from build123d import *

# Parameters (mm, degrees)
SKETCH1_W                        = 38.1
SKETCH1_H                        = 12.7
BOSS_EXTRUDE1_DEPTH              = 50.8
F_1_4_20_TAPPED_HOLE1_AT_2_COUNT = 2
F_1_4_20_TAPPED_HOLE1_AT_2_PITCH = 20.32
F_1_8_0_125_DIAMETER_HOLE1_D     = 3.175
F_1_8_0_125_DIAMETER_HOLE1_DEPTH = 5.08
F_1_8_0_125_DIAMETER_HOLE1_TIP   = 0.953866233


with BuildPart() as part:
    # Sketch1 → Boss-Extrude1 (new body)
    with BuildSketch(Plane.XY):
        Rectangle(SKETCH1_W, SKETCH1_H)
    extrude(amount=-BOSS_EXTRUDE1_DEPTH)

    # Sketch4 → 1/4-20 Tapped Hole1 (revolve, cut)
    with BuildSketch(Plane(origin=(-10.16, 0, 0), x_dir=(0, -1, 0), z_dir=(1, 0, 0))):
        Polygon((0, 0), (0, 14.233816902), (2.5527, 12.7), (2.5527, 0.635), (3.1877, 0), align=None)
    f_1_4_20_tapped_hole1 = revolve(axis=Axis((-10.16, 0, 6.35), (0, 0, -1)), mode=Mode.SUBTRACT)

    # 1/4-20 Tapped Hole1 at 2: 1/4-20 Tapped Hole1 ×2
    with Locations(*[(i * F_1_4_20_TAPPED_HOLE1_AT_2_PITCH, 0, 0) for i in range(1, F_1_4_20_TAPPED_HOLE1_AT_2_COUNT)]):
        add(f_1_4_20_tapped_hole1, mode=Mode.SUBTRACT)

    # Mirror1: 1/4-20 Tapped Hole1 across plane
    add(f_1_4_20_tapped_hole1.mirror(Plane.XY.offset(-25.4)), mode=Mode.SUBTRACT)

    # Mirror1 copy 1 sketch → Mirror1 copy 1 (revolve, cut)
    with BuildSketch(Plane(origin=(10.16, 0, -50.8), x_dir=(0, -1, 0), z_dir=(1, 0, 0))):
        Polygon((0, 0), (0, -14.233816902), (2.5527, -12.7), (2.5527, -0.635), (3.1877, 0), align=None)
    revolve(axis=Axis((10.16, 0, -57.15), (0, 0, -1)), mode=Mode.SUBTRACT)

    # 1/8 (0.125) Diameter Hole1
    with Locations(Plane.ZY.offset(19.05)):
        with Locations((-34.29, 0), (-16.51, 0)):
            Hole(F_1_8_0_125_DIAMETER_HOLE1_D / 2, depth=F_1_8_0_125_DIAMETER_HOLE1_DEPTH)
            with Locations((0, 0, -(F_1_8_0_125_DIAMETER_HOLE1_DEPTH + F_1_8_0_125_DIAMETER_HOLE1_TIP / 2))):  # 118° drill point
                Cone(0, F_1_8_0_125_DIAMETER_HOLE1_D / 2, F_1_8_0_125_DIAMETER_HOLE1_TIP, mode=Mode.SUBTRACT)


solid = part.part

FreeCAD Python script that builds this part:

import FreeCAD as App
import Part
import Sketcher
Q = App.Units.Quantity


def add_polygon(sketch, points):
    """Adds a closed chain of lines whose ends are joined by coincident constraints."""
    first, n = sketch.GeometryCount, len(points)
    for a, b in zip(points, points[1:] + points[:1]):
        sketch.addGeometry(Part.LineSegment(App.Vector(*a, 0), App.Vector(*b, 0)), False)
    for i in range(n):
        sketch.addConstraint(Sketcher.Constraint("Coincident", first + i, 2, first + (i + 1) % n, 1))

doc = App.newDocument("Part")
body = doc.addObject("PartDesign::Body", "Body")

# Sketch on XY plane
sketch1 = doc.addObject("Sketcher::SketchObject", "Sketch")
body.addObject(sketch1)
sketch1.AttachmentSupport = (doc.XY_Plane, [""])
sketch1.MapMode = "FlatFace"
add_polygon(sketch1, [(-19.05, 6.35), (-19.05, -6.35), (19.05, -6.35), (19.05, 6.35)])  # lines 0-3
sketch1.addConstraint([
    Sketcher.Constraint("Vertical", 0),
    Sketcher.Constraint("Horizontal", 1),
    Sketcher.Constraint("Vertical", 2),
    Sketcher.Constraint("Horizontal", 3),
    Sketcher.Constraint("Symmetric", 0, 2, 2, 2, -1, 1),
    Sketcher.Constraint("DistanceX", 1, 1, 1, 2, Q("1.5 in")),
    Sketcher.Constraint("DistanceY", 0, 2, 0, 1, Q("0.5 in")),
])
pad1 = doc.addObject("PartDesign::Pad", "Pad")
body.addObject(pad1)
pad1.Profile = sketch1
pad1.Length = Q("2 in")
pad1.Reversed = True

# Sketch on YZ plane
sketch2 = doc.addObject("Sketcher::SketchObject", "Sketch001")
body.addObject(sketch2)
sketch2.AttachmentSupport = (doc.YZ_Plane, [""])
sketch2.MapMode = "FlatFace"
sketch2.AttachmentOffset = App.Placement(App.Vector(0, 0, -0.4 * 25.4), App.Rotation())
add_polygon(sketch2, [(0, -14.233817), (0, 0), (-3.1877, 0), (-2.5527, -0.635), (-2.5527, -12.7)])  # lines 0-4
sketch2.addConstraint([
    Sketcher.Constraint("Vertical", 0),
    Sketcher.Constraint("Horizontal", 1),
    Sketcher.Constraint("Vertical", 3),
    Sketcher.Constraint("Coincident", 0, 2, -1, 1),
    Sketcher.Constraint("Angle", 2, Q("-45 deg")),
    Sketcher.Constraint("Angle", 4, Q("-31 deg")),
    Sketcher.Constraint("DistanceY", 3, 2, -1, 1, Q("0.5 in")),
    Sketcher.Constraint("DistanceY", 3, 2, 3, 1, Q("0.475 in")),
    Sketcher.Constraint("DistanceX", 1, 2, 1, 1, Q("0.1255 in")),
])
groove = doc.addObject("PartDesign::Groove", "Groove")
body.addObject(groove)
groove.Profile = sketch2
groove.ReferenceAxis = (sketch2, ["V_Axis"])
groove.Angle = 360
doc.recompute()

linearpattern = doc.addObject("PartDesign::LinearPattern", "LinearPattern")
body.addObject(linearpattern)
linearpattern.Originals = [groove]
linearpattern.Direction = (doc.X_Axis, [""])
linearpattern.Mode = "offset"
linearpattern.Offset = Q("0.8 in")
linearpattern.Occurrences = 2
body.Tip = linearpattern
doc.recompute()

datumplane = doc.addObject("PartDesign::Plane", "DatumPlane")
body.addObject(datumplane)
datumplane.AttachmentSupport = (doc.XY_Plane, [""])
datumplane.MapMode = "FlatFace"
datumplane.AttachmentOffset = App.Placement(App.Vector(0, 0, -1 * 25.4), App.Rotation())
mirrored = doc.addObject("PartDesign::Mirrored", "Mirrored")
body.addObject(mirrored)
mirrored.Originals = [groove]
mirrored.MirrorPlane = (datumplane, [""])
body.Tip = mirrored

# Sketch on YZ plane
sketch3 = doc.addObject("Sketcher::SketchObject", "Sketch002")
body.addObject(sketch3)
sketch3.AttachmentSupport = (doc.YZ_Plane, [""])
sketch3.MapMode = "FlatFace"
sketch3.AttachmentOffset = App.Placement(App.Vector(0, 0, 0.4 * 25.4), App.Rotation())
add_polygon(sketch3, [(0, -50.8), (0, -36.566183), (-2.5527, -38.1), (-2.5527, -50.165), (-3.1877, -50.8)])  # lines 0-4
sketch3.addConstraint([
    Sketcher.Constraint("Vertical", 0),
    Sketcher.Constraint("Vertical", 2),
    Sketcher.Constraint("Horizontal", 4),
    Sketcher.Constraint("PointOnObject", 0, 2, -2),
    Sketcher.Constraint("DistanceY", 3, 2, -1, 1, Q("2 in")),
    Sketcher.Constraint("Angle", 1, Q("-149 deg")),
    Sketcher.Constraint("Angle", 3, Q("-135 deg")),
    Sketcher.Constraint("DistanceY", 1, 2, -1, 1, Q("1.5 in")),
    Sketcher.Constraint("DistanceY", 2, 2, 2, 1, Q("0.475 in")),
    Sketcher.Constraint("DistanceX", 4, 1, 4, 2, Q("0.1255 in")),
])
groove2 = doc.addObject("PartDesign::Groove", "Groove001")
body.addObject(groove2)
groove2.Profile = sketch3
groove2.ReferenceAxis = (sketch3, ["V_Axis"])
groove2.Angle = 360

# Sketch on YZ plane
sketch4 = doc.addObject("Sketcher::SketchObject", "Sketch003")
body.addObject(sketch4)
sketch4.AttachmentSupport = (doc.YZ_Plane, [""])
sketch4.MapMode = "FlatFace"
sketch4.AttachmentOffset = App.Placement(App.Vector(0, 0, -0.75 * 25.4), App.Rotation())
sketch4.addGeometry([
    Part.Circle(App.Vector(0, -34.29, 0), App.Vector(0, 0, 1), 1.5875),
    Part.Circle(App.Vector(0, -16.51, 0), App.Vector(0, 0, 1), 1.5875),
], False)
sketch4.addConstraint([
    Sketcher.Constraint("Equal", 0, 1),
    Sketcher.Constraint("PointOnObject", 0, 3, -2),
    Sketcher.Constraint("PointOnObject", 1, 3, -2),
    Sketcher.Constraint("Diameter", 0, Q("0.125 in")),
    Sketcher.Constraint("DistanceY", 0, 3, 1, 3, Q("0.7 in")),
    Sketcher.Constraint("DistanceY", 0, 3, -1, 1, Q("1.35 in")),
])
doc.recompute()
hole = doc.addObject("PartDesign::Hole", "Hole")
body.addObject(hole)
hole.Profile = sketch4
hole.ThreadType = "None"
hole.Diameter = Q("0.125 in")
hole.DepthType = "Dimension"
hole.Depth = Q("0.2 in")
hole.DrillPoint = "Angled"
hole.DrillPointAngle = 118
hole.Reversed = True

doc.recompute()
